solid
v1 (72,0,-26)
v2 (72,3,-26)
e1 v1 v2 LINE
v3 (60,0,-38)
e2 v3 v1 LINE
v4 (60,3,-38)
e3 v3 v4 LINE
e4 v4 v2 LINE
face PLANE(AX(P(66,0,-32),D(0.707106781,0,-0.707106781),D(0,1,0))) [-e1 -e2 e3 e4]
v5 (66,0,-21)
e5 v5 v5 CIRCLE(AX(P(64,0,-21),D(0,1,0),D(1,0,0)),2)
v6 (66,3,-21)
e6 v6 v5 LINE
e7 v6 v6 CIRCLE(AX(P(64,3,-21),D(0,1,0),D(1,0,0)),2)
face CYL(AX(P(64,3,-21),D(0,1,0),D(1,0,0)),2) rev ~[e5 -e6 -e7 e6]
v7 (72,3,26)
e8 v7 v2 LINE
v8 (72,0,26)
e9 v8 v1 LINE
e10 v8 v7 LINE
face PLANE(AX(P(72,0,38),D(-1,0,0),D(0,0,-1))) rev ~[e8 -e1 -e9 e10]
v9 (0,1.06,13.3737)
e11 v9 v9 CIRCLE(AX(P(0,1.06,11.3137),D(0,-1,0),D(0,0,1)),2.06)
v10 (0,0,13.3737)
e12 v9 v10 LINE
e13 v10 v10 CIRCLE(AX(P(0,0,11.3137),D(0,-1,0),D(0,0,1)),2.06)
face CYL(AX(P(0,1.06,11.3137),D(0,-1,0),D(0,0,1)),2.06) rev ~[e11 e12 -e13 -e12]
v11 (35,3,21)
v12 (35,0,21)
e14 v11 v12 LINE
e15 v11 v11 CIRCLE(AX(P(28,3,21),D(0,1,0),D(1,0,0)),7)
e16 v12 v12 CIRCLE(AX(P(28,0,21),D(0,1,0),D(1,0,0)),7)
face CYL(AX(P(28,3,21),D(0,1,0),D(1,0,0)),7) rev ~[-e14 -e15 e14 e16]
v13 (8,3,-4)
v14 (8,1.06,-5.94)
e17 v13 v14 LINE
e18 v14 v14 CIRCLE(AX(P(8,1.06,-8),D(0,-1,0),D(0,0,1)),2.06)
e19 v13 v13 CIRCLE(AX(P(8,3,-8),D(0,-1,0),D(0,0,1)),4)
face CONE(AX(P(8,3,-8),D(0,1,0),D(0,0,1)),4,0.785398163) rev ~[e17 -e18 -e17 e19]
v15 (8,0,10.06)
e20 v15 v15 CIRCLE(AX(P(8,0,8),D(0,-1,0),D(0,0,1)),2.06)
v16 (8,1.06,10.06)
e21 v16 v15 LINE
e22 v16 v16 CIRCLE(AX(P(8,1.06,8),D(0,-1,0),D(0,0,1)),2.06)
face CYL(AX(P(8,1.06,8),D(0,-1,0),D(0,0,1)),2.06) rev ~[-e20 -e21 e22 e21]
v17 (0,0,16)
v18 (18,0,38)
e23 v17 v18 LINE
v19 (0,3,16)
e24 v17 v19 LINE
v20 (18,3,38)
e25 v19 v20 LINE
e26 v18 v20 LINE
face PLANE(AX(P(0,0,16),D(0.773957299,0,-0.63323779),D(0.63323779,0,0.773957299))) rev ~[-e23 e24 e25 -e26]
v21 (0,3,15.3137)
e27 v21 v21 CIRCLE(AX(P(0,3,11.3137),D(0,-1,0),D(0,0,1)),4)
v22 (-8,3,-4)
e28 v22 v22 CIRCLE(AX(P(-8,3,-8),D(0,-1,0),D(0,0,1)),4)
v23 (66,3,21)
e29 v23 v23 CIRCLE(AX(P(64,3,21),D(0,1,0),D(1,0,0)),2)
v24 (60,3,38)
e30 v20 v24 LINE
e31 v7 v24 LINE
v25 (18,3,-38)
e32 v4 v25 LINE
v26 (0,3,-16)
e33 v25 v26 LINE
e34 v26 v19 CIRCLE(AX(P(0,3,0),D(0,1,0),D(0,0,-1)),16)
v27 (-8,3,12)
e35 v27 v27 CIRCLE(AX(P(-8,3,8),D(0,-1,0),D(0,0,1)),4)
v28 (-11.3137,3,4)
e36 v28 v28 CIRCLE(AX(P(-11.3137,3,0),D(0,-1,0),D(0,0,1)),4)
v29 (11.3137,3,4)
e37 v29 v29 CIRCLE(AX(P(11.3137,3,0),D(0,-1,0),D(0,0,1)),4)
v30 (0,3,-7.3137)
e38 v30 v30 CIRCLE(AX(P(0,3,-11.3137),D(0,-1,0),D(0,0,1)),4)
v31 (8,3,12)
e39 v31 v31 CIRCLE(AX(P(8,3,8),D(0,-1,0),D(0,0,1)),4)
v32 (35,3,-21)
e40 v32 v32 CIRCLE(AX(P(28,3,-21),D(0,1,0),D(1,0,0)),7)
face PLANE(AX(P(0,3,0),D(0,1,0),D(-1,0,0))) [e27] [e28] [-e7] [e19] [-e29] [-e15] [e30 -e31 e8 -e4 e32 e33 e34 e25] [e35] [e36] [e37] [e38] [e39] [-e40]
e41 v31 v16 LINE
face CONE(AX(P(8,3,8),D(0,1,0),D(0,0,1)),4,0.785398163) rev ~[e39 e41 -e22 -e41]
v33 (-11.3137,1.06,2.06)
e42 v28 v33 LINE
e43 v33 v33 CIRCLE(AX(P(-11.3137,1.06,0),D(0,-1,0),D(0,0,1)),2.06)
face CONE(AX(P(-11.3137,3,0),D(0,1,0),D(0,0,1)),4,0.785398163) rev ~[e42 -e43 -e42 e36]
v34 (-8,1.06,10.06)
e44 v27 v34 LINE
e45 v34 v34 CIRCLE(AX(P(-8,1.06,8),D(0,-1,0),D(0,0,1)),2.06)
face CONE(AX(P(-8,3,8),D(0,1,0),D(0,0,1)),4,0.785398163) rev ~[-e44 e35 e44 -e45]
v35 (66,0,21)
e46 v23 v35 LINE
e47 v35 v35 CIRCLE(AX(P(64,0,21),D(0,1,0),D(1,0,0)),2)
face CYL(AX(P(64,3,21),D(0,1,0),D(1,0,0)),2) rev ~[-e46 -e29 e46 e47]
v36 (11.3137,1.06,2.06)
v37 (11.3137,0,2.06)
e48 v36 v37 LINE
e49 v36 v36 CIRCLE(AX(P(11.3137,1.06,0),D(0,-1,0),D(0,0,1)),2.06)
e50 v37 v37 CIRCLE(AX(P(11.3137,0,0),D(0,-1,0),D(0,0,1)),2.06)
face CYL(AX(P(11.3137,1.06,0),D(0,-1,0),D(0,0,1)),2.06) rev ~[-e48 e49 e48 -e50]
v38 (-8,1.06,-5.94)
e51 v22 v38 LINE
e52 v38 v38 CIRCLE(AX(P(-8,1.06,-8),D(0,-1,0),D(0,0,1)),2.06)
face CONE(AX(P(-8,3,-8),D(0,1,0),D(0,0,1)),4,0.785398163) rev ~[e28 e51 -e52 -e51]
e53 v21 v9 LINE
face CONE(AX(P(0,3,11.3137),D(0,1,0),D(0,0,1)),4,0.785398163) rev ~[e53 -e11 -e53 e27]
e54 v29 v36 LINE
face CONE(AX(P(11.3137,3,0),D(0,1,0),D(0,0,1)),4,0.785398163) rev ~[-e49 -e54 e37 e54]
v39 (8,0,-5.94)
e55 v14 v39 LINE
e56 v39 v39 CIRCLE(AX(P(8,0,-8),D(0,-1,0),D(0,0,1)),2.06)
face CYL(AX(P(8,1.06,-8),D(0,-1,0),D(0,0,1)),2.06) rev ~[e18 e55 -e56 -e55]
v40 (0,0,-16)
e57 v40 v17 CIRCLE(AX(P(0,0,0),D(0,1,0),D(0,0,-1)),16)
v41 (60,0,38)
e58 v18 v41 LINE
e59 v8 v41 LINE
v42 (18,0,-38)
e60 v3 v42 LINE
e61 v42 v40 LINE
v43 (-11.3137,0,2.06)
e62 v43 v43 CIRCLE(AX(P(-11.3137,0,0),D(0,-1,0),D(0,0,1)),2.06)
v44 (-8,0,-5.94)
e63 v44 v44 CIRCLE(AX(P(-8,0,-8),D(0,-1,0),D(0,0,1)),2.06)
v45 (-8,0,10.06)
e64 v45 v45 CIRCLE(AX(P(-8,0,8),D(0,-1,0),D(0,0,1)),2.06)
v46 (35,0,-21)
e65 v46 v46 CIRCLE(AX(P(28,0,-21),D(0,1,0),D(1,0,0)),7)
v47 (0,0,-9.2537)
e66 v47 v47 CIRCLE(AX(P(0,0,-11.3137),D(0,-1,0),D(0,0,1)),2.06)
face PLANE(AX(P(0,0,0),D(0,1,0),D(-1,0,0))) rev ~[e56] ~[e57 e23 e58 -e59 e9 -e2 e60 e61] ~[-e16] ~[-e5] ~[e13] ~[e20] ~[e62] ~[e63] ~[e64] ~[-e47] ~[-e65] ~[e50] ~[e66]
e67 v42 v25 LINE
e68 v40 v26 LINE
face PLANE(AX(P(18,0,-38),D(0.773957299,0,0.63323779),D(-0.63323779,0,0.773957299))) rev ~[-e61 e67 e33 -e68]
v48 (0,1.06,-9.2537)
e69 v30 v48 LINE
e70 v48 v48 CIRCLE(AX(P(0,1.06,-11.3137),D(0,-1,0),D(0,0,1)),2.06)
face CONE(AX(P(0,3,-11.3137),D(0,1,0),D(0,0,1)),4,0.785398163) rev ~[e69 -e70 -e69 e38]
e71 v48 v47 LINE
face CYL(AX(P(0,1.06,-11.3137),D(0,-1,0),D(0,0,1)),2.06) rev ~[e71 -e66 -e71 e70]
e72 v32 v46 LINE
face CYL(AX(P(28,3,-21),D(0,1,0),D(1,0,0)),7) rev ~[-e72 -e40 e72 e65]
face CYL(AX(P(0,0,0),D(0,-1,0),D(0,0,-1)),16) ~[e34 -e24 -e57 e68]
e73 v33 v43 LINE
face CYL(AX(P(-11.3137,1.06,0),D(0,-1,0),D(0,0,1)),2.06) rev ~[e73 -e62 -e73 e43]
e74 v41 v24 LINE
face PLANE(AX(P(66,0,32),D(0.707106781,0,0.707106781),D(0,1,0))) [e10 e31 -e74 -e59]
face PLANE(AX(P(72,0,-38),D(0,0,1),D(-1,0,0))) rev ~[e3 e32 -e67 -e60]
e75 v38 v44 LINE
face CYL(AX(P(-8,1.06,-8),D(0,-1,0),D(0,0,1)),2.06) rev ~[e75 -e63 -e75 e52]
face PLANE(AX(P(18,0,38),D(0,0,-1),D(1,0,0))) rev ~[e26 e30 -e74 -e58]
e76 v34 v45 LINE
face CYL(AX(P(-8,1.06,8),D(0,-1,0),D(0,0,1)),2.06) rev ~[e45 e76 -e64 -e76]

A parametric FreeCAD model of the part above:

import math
import FreeCAD as App
import Part
import Sketcher


def edges_at(feature, points):
    """Names of the edges that pass closest to the given points."""
    edges = feature.Shape.Edges
    near = lambda p: min(range(len(edges)), key=lambda i: edges[i].distToShape(Part.Vertex(*p))[0])
    return sorted({f"Edge{near(p) + 1}" for p in points})

doc = App.newDocument("Part")
body = doc.addObject("PartDesign::Body", "Body")

# Sketch on XZ plane
sketch1 = body.newObject("Sketcher::SketchObject", "Sketch")
sketch1.AttachmentSupport = (doc.getObject("XZ_Plane"), [""])
sketch1.MapMode = "FlatFace"
sketch1.addGeometry([
    Part.LineSegment(App.Vector(18, -38, 0), App.Vector(0, -16, 0)),  # 0
    Part.ArcOfCircle(Part.Circle(App.Vector(0, 0, 0), App.Vector(0, 0, 1), 16), math.radians(90), math.radians(270)),  # 1
    Part.LineSegment(App.Vector(0, 16, 0), App.Vector(18, 38, 0)),  # 2
    Part.LineSegment(App.Vector(18, 38, 0), App.Vector(72, 38, 0)),  # 3
    Part.LineSegment(App.Vector(72, 38, 0), App.Vector(72, -38, 0)),  # 4
    Part.LineSegment(App.Vector(72, -38, 0), App.Vector(18, -38, 0)),  # 5
    Part.Circle(App.Vector(8, -8, 0), App.Vector(0, 0, 1), 2),  # 6
    Part.Circle(App.Vector(0, -11.3, 0), App.Vector(0, 0, 1), 2),  # 7
    Part.Circle(App.Vector(-8, -8, 0), App.Vector(0, 0, 1), 2),  # 8
    Part.Circle(App.Vector(11.3, 0, 0), App.Vector(0, 0, 1), 2),  # 9
    Part.Circle(App.Vector(8, 8, 0), App.Vector(0, 0, 1), 2),  # 10
    Part.Circle(App.Vector(-11.3, 0, 0), App.Vector(0, 0, 1), 2),  # 11
    Part.Circle(App.Vector(-8, 8, 0), App.Vector(0, 0, 1), 2),  # 12
    Part.Circle(App.Vector(0, 11.3, 0), App.Vector(0, 0, 1), 2),  # 13
], False)
sketch1.addConstraint([
    Sketcher.Constraint("Coincident", 0, 2, 1, 2),
    Sketcher.Constraint("Coincident", 1, 1, 2, 1),
    Sketcher.Constraint("Coincident", 2, 2, 3, 1),
    Sketcher.Constraint("Coincident", 3, 2, 4, 1),
    Sketcher.Constraint("Coincident", 4, 2, 5, 1),
    Sketcher.Constraint("Coincident", 5, 2, 0, 1),
    Sketcher.Constraint("Horizontal", 3),
    Sketcher.Constraint("Vertical", 4),
    Sketcher.Constraint("Horizontal", 5),
    Sketcher.Constraint("Coincident", 1, 3, -1, 1),
    Sketcher.Constraint("Equal", 6, 7),
    Sketcher.Constraint("Equal", 7, 8),
    Sketcher.Constraint("Equal", 8, 9),
    Sketcher.Constraint("Equal", 9, 10),
    Sketcher.Constraint("Equal", 10, 11),
    Sketcher.Constraint("Equal", 11, 12),
    Sketcher.Constraint("Equal", 12, 13),
    Sketcher.Constraint("Symmetric", 8, 3, 10, 3, -1, 1),
    Sketcher.Constraint("Symmetric", 9, 3, 11, 3, -1, 1),
    Sketcher.Constraint("Symmetric", 6, 3, 12, 3, -1, 1),
    Sketcher.Constraint("Symmetric", 7, 3, 13, 3, -1, 1),
    Sketcher.Constraint("Symmetric", 6, 3, 8, 3, -2),
    Sketcher.Constraint("Symmetric", 2, 2, 5, 2, -1),
    Sketcher.Constraint("PointOnObject", 7, 3, -2),
    Sketcher.Constraint("PointOnObject", 9, 3, -1),
    Sketcher.Constraint("PointOnObject", 0, 2, -2),
    Sketcher.Constraint("PointOnObject", 1, 1, -2),
    Sketcher.Constraint("Diameter", 6, 4.0),
    Sketcher.Constraint("Radius", 1, 16.0),
    Sketcher.Constraint("DistanceY", 4, 2, 4, 1, 76.0),
    Sketcher.Constraint("DistanceX", -1, 1, 6, 3, 8.0),
    Sketcher.Constraint("DistanceY", 6, 3, -1, 1, 8.0),
    Sketcher.Constraint("DistanceX", -1, 1, 2, 2, 18.0),
    Sketcher.Constraint("DistanceX", -1, 1, 3, 2, 72.0),
    Sketcher.Constraint("DistanceY", 7, 3, -1, 1, 11.3137),
    Sketcher.Constraint("DistanceX", -1, 1, 9, 3, 11.3137),
])
pad1 = body.newObject("PartDesign::Pad", "Pad")
pad1.Profile = sketch1
pad1.Length = 3
pad1.Reversed = True

# Sketch on XZ plane
sketch2 = body.newObject("Sketcher::SketchObject", "Sketch001")
sketch2.AttachmentSupport = (doc.getObject("XZ_Plane"), [""])
sketch2.MapMode = "FlatFace"
sketch2.AttachmentOffset = App.Placement(App.Vector(0, 0, -3), App.Rotation())
sketch2.addGeometry([
    Part.Circle(App.Vector(28, 21, 0), App.Vector(0, 0, 1), 7),
    Part.Circle(App.Vector(28, -21, 0), App.Vector(0, 0, 1), 7),
    Part.Circle(App.Vector(64, 21, 0), App.Vector(0, 0, 1), 2),
    Part.Circle(App.Vector(64, -21, 0), App.Vector(0, 0, 1), 2),
], False)
sketch2.addConstraint([
    Sketcher.Constraint("Equal", 0, 1),
    Sketcher.Constraint("Equal", 2, 3),
    Sketcher.Constraint("Symmetric", 0, 3, 1, 3, -1),
    Sketcher.Constraint("Symmetric", 2, 3, 3, 3, -1),
    Sketcher.Constraint("Horizontal", 0, 3, 2, 3),
    Sketcher.Constraint("Diameter", 0, 14.0),
    Sketcher.Constraint("Diameter", 2, 4.0),
    Sketcher.Constraint("DistanceX", -1, 1, 0, 3, 28.0),
    Sketcher.Constraint("DistanceY", -1, 1, 0, 3, 21.0),
    Sketcher.Constraint("DistanceX", 0, 3, 2, 3, 36.0),
])
pocket1 = body.newObject("PartDesign::Pocket", "Pocket")
pocket1.Profile = sketch2
pocket1.Type = "ThroughAll"
pocket1.Reversed = True

# Sketch on XZ plane
sketch3 = body.newObject("Sketcher::SketchObject", "Sketch002")
sketch3.AttachmentSupport = (doc.getObject("XZ_Plane"), [""])
sketch3.MapMode = "FlatFace"
sketch3.AttachmentOffset = App.Placement(App.Vector(0, 0, -3), App.Rotation())
sketch3.addGeometry([
    Part.Circle(App.Vector(-8, 8, 0), App.Vector(0, 0, 1), 2.1),  # 0
    Part.Circle(App.Vector(-11.3, 0, 0), App.Vector(0, 0, 1), 2.1),  # 1
    Part.Circle(App.Vector(-8, -8, 0), App.Vector(0, 0, 1), 2.1),  # 2
    Part.Circle(App.Vector(0, -11.3, 0), App.Vector(0, 0, 1), 2.1),  # 3
    Part.Circle(App.Vector(8, -8, 0), App.Vector(0, 0, 1), 2.1),  # 4
    Part.Circle(App.Vector(11.3, 0, 0), App.Vector(0, 0, 1), 2.1),  # 5
    Part.Circle(App.Vector(8, 8, 0), App.Vector(0, 0, 1), 2.1),  # 6
    Part.Circle(App.Vector(0, 11.3, 0), App.Vector(0, 0, 1), 2.1),  # 7
], False)
sketch3.addConstraint([
    Sketcher.Constraint("Equal", 0, 1),
    Sketcher.Constraint("Equal", 1, 2),
    Sketcher.Constraint("Equal", 2, 3),
    Sketcher.Constraint("Equal", 3, 4),
    Sketcher.Constraint("Equal", 4, 5),
    Sketcher.Constraint("Equal", 5, 6),
    Sketcher.Constraint("Equal", 6, 7),
    Sketcher.Constraint("Symmetric", 0, 3, 4, 3, -1, 1),
    Sketcher.Constraint("Symmetric", 1, 3, 5, 3, -1, 1),
    Sketcher.Constraint("Symmetric", 2, 3, 6, 3, -1, 1),
    Sketcher.Constraint("Symmetric", 3, 3, 7, 3, -1, 1),
    Sketcher.Constraint("Symmetric", 2, 3, 4, 3, -2),
    Sketcher.Constraint("PointOnObject", 1, 3, -1),
    Sketcher.Constraint("PointOnObject", 3, 3, -2),
    Sketcher.Constraint("Diameter", 0, 4.12),
    Sketcher.Constraint("DistanceX", 0, 3, -1, 1, 8.0),
    Sketcher.Constraint("DistanceY", -1, 1, 0, 3, 8.0),
    Sketcher.Constraint("DistanceX", 1, 3, -1, 1, 11.3137),
    Sketcher.Constraint("DistanceY", 3, 3, -1, 1, 11.3137),
])
doc.recompute()
hole = body.newObject("PartDesign::Hole", "Hole")
hole.Profile = sketch3
hole.ThreadType = "None"
hole.Diameter = 4.12
hole.DepthType = "ThroughAll"
hole.HoleCutType = "Countersink"
hole.HoleCutDiameter = 8
hole.HoleCutCountersinkAngle = 90
hole.Reversed = True
doc.recompute()

chamfer = body.newObject("PartDesign::Chamfer", "Chamfer")
chamfer.Base = (hole, edges_at(hole, [(72, 1.5, 38), (72, 1.5, -38)]))
chamfer.Size = 12

doc.recompute()
